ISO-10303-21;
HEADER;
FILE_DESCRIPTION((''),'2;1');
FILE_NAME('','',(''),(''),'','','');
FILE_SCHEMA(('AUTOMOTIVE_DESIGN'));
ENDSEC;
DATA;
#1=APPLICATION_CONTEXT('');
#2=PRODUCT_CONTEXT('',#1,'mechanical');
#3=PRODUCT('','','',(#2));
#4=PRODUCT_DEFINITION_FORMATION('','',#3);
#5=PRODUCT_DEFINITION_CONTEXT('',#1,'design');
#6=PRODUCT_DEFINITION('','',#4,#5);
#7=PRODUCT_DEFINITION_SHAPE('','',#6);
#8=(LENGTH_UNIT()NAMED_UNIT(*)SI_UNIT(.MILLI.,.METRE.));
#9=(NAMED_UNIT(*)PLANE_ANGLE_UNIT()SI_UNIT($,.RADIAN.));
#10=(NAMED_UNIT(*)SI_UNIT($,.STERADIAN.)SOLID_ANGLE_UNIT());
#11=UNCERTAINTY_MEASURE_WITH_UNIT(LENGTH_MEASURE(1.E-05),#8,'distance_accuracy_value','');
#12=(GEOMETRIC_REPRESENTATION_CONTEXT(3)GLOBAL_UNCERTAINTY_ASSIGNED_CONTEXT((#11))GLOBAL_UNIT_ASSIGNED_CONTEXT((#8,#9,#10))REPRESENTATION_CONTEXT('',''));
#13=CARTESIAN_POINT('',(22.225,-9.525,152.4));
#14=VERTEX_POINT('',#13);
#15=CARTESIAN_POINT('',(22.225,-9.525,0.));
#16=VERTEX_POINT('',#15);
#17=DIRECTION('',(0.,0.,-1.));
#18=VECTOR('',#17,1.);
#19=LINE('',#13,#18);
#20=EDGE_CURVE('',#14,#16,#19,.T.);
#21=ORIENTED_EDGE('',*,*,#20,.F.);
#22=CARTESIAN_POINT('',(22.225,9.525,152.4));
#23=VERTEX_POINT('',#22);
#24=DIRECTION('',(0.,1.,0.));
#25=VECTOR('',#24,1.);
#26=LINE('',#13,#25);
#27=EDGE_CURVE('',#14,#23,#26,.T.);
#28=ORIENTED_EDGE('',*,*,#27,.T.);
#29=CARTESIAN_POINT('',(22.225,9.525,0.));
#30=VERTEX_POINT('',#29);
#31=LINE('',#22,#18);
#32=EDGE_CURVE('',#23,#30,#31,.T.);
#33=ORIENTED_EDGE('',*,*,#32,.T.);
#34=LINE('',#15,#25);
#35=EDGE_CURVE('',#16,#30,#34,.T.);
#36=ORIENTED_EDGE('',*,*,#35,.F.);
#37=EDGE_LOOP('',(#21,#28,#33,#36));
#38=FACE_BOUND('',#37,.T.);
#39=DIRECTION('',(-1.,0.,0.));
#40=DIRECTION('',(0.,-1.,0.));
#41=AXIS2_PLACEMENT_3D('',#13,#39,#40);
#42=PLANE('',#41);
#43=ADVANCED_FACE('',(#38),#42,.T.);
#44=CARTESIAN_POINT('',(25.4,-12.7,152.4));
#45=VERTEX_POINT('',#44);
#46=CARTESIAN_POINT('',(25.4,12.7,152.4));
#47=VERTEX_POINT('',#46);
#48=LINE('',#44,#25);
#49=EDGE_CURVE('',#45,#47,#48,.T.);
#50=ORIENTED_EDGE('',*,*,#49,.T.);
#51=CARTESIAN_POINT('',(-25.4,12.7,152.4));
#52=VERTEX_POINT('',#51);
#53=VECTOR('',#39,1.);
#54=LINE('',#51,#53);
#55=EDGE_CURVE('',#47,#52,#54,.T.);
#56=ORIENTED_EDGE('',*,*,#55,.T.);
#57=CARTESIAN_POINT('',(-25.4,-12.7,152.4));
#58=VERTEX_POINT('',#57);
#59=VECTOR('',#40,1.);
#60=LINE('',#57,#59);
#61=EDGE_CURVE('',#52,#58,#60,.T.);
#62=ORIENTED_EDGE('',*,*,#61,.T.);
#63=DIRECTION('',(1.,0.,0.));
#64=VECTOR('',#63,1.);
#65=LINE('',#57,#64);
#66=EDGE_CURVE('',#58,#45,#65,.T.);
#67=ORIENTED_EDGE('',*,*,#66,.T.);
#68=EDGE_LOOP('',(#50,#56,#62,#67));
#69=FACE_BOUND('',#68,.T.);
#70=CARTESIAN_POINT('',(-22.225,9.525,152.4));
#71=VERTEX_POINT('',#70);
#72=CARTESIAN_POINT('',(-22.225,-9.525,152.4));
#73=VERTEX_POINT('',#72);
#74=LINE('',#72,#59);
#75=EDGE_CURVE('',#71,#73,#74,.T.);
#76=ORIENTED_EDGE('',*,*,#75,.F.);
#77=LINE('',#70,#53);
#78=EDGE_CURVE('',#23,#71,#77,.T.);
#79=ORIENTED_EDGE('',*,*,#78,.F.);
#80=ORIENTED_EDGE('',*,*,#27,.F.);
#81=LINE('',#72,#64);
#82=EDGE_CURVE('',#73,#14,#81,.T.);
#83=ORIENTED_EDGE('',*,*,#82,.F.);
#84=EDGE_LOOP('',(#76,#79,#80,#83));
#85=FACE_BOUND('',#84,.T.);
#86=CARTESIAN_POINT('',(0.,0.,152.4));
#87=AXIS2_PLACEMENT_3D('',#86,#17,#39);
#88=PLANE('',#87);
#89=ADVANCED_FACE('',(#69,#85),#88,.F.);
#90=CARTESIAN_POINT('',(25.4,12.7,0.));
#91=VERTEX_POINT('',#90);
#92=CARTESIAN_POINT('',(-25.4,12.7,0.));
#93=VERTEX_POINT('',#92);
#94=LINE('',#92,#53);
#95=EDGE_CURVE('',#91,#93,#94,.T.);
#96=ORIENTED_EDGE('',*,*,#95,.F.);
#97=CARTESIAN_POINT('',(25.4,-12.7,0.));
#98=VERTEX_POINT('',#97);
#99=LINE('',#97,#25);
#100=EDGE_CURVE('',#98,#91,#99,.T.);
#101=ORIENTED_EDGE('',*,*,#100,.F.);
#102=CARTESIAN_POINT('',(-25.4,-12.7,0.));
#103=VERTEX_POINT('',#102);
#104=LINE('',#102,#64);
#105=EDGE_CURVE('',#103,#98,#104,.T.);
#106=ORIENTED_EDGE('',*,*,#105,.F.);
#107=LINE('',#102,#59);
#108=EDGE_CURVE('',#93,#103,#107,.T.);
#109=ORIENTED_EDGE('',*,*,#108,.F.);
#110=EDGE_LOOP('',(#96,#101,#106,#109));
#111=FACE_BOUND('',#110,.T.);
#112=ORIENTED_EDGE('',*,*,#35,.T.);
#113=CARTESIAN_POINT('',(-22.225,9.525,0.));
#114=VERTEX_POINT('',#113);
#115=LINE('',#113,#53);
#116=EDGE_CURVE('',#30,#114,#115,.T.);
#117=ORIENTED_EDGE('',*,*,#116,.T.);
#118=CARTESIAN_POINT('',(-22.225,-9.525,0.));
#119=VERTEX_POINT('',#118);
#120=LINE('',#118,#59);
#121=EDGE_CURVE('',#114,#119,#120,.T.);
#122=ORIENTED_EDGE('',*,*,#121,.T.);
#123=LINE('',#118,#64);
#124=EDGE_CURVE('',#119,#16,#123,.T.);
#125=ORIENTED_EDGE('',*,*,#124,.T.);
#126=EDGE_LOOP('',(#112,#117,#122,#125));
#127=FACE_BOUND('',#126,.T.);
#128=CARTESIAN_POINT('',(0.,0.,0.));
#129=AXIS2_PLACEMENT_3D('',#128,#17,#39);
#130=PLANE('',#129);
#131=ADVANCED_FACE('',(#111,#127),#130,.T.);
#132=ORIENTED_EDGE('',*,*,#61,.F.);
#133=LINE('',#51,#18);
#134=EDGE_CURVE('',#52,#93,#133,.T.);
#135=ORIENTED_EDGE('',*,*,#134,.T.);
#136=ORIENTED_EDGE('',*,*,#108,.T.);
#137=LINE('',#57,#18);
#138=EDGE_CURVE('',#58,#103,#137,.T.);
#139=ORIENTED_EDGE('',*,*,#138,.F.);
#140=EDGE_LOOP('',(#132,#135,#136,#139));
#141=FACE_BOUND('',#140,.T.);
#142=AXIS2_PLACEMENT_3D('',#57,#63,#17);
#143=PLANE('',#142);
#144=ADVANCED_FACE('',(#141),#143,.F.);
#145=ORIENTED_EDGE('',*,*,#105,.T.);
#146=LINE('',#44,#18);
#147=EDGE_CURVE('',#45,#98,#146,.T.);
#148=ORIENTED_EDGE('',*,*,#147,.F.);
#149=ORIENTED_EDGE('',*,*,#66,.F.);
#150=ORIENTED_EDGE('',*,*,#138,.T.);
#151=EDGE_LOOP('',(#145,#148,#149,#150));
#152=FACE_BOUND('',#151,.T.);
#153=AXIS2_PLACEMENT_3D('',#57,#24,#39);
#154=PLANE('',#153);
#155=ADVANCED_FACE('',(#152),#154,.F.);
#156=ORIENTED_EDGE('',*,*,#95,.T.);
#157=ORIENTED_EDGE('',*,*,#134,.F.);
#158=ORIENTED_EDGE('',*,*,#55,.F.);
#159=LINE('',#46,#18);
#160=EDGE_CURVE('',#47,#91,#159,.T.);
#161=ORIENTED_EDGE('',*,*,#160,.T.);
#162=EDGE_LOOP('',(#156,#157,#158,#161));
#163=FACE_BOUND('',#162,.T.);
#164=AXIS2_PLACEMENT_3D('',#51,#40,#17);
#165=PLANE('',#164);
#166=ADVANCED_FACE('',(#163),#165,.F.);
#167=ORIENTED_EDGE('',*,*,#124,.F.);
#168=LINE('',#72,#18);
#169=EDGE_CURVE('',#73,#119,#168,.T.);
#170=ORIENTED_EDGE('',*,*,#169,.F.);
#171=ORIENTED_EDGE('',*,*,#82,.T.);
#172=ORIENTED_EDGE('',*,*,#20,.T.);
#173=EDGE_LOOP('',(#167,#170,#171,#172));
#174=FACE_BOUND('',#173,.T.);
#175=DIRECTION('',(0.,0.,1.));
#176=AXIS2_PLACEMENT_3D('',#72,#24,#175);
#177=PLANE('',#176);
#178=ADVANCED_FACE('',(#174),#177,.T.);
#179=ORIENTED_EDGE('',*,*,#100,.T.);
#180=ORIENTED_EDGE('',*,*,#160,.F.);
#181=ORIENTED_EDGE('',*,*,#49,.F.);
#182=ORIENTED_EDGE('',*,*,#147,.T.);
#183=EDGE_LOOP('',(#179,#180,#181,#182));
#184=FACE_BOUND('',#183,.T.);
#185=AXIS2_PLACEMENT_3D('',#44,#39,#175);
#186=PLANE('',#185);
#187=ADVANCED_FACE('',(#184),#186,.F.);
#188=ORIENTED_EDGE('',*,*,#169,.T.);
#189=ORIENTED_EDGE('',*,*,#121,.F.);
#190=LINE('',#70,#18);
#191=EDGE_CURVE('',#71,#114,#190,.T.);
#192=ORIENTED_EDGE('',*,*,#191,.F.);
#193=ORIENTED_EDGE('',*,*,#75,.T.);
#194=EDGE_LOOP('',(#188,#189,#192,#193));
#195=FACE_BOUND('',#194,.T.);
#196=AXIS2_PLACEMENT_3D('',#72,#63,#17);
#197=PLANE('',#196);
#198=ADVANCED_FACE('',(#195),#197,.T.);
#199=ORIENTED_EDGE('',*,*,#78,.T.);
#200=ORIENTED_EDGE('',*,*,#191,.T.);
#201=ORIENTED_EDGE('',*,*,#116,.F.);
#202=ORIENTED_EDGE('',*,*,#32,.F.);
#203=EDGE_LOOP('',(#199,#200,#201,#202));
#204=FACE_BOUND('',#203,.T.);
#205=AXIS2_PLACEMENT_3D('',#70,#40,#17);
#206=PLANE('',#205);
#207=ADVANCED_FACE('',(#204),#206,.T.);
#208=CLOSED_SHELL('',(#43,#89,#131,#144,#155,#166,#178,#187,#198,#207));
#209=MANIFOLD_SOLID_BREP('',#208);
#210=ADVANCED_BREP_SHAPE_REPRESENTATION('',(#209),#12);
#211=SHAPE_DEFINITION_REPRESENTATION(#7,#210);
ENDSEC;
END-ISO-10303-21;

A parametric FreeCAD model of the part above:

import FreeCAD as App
import Part
import Sketcher
from FreeCAD import Vector
Q = App.Units.Quantity

doc = App.newDocument("Part")
body = doc.addObject("PartDesign::Body", "Body")

# Sketch on XY plane
sketch1 = body.newObject("Sketcher::SketchObject", "Sketch")
sketch1.AttachmentSupport = (doc.getObject("XY_Plane"), [""])
sketch1.MapMode = "FlatFace"
sketch1.addGeometry(Part.LineSegment(Vector(-25, 13, 0), Vector(-25, -13, 0)), False)
sketch1.addGeometry(Part.LineSegment(Vector(-25, -13, 0), Vector(25, -13, 0)), False)
sketch1.addGeometry(Part.LineSegment(Vector(25, -13, 0), Vector(25, 13, 0)), False)
sketch1.addGeometry(Part.LineSegment(Vector(25, 13, 0), Vector(-25, 13, 0)), False)
sketch1.addGeometry(Part.LineSegment(Vector(22, -10, 0), Vector(-22, -10, 0)), False)
sketch1.addGeometry(Part.LineSegment(Vector(-22, -10, 0), Vector(-22, 10, 0)), False)
sketch1.addGeometry(Part.LineSegment(Vector(-22, 10, 0), Vector(22, 10, 0)), False)
sketch1.addGeometry(Part.LineSegment(Vector(22, 10, 0), Vector(22, -10, 0)), False)
sketch1.addConstraint(Sketcher.Constraint("Coincident", 0, 2, 1, 1))
sketch1.addConstraint(Sketcher.Constraint("Coincident", 1, 2, 2, 1))
sketch1.addConstraint(Sketcher.Constraint("Coincident", 2, 2, 3, 1))
sketch1.addConstraint(Sketcher.Constraint("Coincident", 3, 2, 0, 1))
sketch1.addConstraint(Sketcher.Constraint("Coincident", 4, 2, 5, 1))
sketch1.addConstraint(Sketcher.Constraint("Coincident", 5, 2, 6, 1))
sketch1.addConstraint(Sketcher.Constraint("Coincident", 6, 2, 7, 1))
sketch1.addConstraint(Sketcher.Constraint("Coincident", 7, 2, 4, 1))
sketch1.addConstraint(Sketcher.Constraint("Vertical", 0))
sketch1.addConstraint(Sketcher.Constraint("Horizontal", 1))
sketch1.addConstraint(Sketcher.Constraint("Vertical", 2))
sketch1.addConstraint(Sketcher.Constraint("Horizontal", 3))
sketch1.addConstraint(Sketcher.Constraint("Horizontal", 4))
sketch1.addConstraint(Sketcher.Constraint("Vertical", 5))
sketch1.addConstraint(Sketcher.Constraint("Horizontal", 6))
sketch1.addConstraint(Sketcher.Constraint("Vertical", 7))
sketch1.addConstraint(Sketcher.Constraint("Symmetric", 0, 2, 2, 2, -1, 1))
sketch1.addConstraint(Sketcher.Constraint("Symmetric", 4, 2, 6, 2, -1, 1))
sketch1.addConstraint(Sketcher.Constraint("DistanceX", 1, 1, 1, 2, Q("2 in")))
sketch1.addConstraint(Sketcher.Constraint("DistanceY", 0, 2, 0, 1, Q("1 in")))
sketch1.addConstraint(Sketcher.Constraint("DistanceX", 4, 2, 4, 1, Q("1.75 in")))
sketch1.addConstraint(Sketcher.Constraint("DistanceY", 5, 1, 5, 2, Q("0.75 in")))
pad1 = body.newObject("PartDesign::Pad", "Pad")
pad1.Profile = sketch1
pad1.Length = Q("6 in")

doc.recompute()
